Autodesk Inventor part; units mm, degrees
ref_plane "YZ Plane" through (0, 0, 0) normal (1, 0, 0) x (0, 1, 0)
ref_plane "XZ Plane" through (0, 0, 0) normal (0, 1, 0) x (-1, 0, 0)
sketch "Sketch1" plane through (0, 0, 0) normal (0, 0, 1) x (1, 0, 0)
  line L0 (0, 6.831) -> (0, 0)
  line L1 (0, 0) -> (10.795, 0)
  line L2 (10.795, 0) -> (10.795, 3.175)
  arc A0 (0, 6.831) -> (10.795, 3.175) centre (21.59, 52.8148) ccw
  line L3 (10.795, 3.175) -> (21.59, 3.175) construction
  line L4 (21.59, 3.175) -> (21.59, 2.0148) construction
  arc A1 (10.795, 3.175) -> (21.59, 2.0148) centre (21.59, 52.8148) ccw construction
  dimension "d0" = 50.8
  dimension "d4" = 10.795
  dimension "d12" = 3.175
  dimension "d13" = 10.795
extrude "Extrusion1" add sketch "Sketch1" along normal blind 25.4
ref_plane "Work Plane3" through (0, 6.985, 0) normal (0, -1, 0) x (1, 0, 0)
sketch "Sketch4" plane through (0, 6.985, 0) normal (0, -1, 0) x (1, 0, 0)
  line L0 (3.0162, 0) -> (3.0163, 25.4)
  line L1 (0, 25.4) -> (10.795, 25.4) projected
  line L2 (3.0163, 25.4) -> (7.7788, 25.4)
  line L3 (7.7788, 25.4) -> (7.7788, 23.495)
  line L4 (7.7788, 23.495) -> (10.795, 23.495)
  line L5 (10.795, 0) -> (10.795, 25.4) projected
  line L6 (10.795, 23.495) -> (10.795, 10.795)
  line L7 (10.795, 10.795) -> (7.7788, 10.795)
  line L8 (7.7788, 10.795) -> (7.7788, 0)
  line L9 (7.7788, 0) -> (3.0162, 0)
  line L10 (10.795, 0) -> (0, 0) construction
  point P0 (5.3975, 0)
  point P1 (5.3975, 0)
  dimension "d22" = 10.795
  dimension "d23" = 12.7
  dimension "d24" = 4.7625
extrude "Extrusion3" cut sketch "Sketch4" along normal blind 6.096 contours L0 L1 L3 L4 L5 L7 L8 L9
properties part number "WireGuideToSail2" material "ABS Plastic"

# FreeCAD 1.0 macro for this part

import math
import FreeCAD as App
import Part
import Sketcher

V = App.Vector
Q = App.Units.Quantity

doc = App.newDocument("Part")
body = doc.addObject("PartDesign::Body", "Body")

# Sketch on XY plane
sketch1 = body.newObject("Sketcher::SketchObject", "Sketch")
sketch1.AttachmentSupport = (doc.getObject("XY_Plane"), [""])
sketch1.MapMode = "FlatFace"
sketch1.addGeometry([
    Part.ArcOfCircle(Part.Circle(V(21.6, 52.8, 0), V(0, 0, 1), 50.8), math.radians(-115.15), math.radians(-102.27)),
    Part.LineSegment(V(0, 6.8, 0), V(0, 0, 0)),
    Part.LineSegment(V(0, 0, 0), V(10.8, 0, 0)),
    Part.LineSegment(V(10.8, 0, 0), V(10.8, 3.2, 0)),
], False)
sketch1.addConstraint([
    Sketcher.Constraint("Coincident", 0, 1, 1, 1),
    Sketcher.Constraint("Coincident", 1, 2, 2, 1),
    Sketcher.Constraint("Coincident", 2, 2, 3, 1),
    Sketcher.Constraint("Coincident", 3, 2, 0, 2),
    Sketcher.Constraint("Vertical", 1),
    Sketcher.Constraint("Horizontal", 2),
    Sketcher.Constraint("Vertical", 3),
    Sketcher.Constraint("Coincident", 1, 2, -1, 1),
    Sketcher.Constraint("DistanceX", 2, 1, 2, 2, Q("0.425 in")),
    Sketcher.Constraint("DistanceY", 3, 1, 3, 2, Q("0.125 in")),
    Sketcher.Constraint("Radius", 0, Q("50.803 mm")),
    Sketcher.Constraint("DistanceY", 1, 2, 1, 1, Q("6.831 mm")),
])
pad1 = body.newObject("PartDesign::Pad", "Pad")
pad1.Profile = sketch1
pad1.Length = Q("1 in")

# Sketch on XZ plane
sketch2 = body.newObject("Sketcher::SketchObject", "Sketch001")
sketch2.AttachmentSupport = (doc.getObject("XZ_Plane"), [""])
sketch2.MapMode = "FlatFace"
sketch2.AttachmentOffset = App.Placement(V(0, 0, -0.275 * 25.4), App.Rotation())
sketch2.addGeometry([
    Part.LineSegment(V(3, 25.4, 0), V(3, 0, 0)),  # 0
    Part.LineSegment(V(3, 0, 0), V(7.8, 0, 0)),  # 1
    Part.LineSegment(V(7.8, 0, 0), V(7.8, 10.8, 0)),  # 2
    Part.LineSegment(V(7.8, 10.8, 0), V(10.8, 10.8, 0)),  # 3
    Part.LineSegment(V(10.8, 10.8, 0), V(10.8, 23.5, 0)),  # 4
    Part.LineSegment(V(10.8, 23.5, 0), V(7.8, 23.5, 0)),  # 5
    Part.LineSegment(V(7.8, 23.5, 0), V(7.8, 25.4, 0)),  # 6
    Part.LineSegment(V(7.8, 25.4, 0), V(3, 25.4, 0)),  # 7
], False)
sketch2.addConstraint([
    Sketcher.Constraint("Coincident", 0, 2, 1, 1),
    Sketcher.Constraint("Coincident", 1, 2, 2, 1),
    Sketcher.Constraint("Coincident", 2, 2, 3, 1),
    Sketcher.Constraint("Coincident", 3, 2, 4, 1),
    Sketcher.Constraint("Coincident", 4, 2, 5, 1),
    Sketcher.Constraint("Coincident", 5, 2, 6, 1),
    Sketcher.Constraint("Coincident", 6, 2, 7, 1),
    Sketcher.Constraint("Coincident", 7, 2, 0, 1),
    Sketcher.Constraint("Vertical", 0),
    Sketcher.Constraint("Horizontal", 1),
    Sketcher.Constraint("Vertical", 2),
    Sketcher.Constraint("Horizontal", 3),
    Sketcher.Constraint("Vertical", 4),
    Sketcher.Constraint("Horizontal", 5),
    Sketcher.Constraint("Vertical", 6),
    Sketcher.Constraint("Horizontal", 7),
    Sketcher.Constraint("PointOnObject", 0, 2, -1),
    Sketcher.Constraint("Vertical", 2, 2, 5, 2),
    Sketcher.Constraint("DistanceY", 4, 1, 4, 2, Q("0.5 in")),
    Sketcher.Constraint("DistanceX", 1, 1, 1, 2, Q("0.1875 in")),
    Sketcher.Constraint("DistanceY", 0, 2, 0, 1, Q("1 in")),
    Sketcher.Constraint("DistanceY", 2, 1, 2, 2, Q("0.425 in")),
    Sketcher.Constraint("DistanceX", -1, 1, 3, 2, Q("0.425 in")),
    Sketcher.Constraint("DistanceX", 3, 1, 3, 2, Q("3.0162 mm")),
])
pocket1 = body.newObject("PartDesign::Pocket", "Pocket")
pocket1.Profile = sketch2
pocket1.Length = Q("0.24 in")
pocket1.Reversed = True

doc.recompute()
